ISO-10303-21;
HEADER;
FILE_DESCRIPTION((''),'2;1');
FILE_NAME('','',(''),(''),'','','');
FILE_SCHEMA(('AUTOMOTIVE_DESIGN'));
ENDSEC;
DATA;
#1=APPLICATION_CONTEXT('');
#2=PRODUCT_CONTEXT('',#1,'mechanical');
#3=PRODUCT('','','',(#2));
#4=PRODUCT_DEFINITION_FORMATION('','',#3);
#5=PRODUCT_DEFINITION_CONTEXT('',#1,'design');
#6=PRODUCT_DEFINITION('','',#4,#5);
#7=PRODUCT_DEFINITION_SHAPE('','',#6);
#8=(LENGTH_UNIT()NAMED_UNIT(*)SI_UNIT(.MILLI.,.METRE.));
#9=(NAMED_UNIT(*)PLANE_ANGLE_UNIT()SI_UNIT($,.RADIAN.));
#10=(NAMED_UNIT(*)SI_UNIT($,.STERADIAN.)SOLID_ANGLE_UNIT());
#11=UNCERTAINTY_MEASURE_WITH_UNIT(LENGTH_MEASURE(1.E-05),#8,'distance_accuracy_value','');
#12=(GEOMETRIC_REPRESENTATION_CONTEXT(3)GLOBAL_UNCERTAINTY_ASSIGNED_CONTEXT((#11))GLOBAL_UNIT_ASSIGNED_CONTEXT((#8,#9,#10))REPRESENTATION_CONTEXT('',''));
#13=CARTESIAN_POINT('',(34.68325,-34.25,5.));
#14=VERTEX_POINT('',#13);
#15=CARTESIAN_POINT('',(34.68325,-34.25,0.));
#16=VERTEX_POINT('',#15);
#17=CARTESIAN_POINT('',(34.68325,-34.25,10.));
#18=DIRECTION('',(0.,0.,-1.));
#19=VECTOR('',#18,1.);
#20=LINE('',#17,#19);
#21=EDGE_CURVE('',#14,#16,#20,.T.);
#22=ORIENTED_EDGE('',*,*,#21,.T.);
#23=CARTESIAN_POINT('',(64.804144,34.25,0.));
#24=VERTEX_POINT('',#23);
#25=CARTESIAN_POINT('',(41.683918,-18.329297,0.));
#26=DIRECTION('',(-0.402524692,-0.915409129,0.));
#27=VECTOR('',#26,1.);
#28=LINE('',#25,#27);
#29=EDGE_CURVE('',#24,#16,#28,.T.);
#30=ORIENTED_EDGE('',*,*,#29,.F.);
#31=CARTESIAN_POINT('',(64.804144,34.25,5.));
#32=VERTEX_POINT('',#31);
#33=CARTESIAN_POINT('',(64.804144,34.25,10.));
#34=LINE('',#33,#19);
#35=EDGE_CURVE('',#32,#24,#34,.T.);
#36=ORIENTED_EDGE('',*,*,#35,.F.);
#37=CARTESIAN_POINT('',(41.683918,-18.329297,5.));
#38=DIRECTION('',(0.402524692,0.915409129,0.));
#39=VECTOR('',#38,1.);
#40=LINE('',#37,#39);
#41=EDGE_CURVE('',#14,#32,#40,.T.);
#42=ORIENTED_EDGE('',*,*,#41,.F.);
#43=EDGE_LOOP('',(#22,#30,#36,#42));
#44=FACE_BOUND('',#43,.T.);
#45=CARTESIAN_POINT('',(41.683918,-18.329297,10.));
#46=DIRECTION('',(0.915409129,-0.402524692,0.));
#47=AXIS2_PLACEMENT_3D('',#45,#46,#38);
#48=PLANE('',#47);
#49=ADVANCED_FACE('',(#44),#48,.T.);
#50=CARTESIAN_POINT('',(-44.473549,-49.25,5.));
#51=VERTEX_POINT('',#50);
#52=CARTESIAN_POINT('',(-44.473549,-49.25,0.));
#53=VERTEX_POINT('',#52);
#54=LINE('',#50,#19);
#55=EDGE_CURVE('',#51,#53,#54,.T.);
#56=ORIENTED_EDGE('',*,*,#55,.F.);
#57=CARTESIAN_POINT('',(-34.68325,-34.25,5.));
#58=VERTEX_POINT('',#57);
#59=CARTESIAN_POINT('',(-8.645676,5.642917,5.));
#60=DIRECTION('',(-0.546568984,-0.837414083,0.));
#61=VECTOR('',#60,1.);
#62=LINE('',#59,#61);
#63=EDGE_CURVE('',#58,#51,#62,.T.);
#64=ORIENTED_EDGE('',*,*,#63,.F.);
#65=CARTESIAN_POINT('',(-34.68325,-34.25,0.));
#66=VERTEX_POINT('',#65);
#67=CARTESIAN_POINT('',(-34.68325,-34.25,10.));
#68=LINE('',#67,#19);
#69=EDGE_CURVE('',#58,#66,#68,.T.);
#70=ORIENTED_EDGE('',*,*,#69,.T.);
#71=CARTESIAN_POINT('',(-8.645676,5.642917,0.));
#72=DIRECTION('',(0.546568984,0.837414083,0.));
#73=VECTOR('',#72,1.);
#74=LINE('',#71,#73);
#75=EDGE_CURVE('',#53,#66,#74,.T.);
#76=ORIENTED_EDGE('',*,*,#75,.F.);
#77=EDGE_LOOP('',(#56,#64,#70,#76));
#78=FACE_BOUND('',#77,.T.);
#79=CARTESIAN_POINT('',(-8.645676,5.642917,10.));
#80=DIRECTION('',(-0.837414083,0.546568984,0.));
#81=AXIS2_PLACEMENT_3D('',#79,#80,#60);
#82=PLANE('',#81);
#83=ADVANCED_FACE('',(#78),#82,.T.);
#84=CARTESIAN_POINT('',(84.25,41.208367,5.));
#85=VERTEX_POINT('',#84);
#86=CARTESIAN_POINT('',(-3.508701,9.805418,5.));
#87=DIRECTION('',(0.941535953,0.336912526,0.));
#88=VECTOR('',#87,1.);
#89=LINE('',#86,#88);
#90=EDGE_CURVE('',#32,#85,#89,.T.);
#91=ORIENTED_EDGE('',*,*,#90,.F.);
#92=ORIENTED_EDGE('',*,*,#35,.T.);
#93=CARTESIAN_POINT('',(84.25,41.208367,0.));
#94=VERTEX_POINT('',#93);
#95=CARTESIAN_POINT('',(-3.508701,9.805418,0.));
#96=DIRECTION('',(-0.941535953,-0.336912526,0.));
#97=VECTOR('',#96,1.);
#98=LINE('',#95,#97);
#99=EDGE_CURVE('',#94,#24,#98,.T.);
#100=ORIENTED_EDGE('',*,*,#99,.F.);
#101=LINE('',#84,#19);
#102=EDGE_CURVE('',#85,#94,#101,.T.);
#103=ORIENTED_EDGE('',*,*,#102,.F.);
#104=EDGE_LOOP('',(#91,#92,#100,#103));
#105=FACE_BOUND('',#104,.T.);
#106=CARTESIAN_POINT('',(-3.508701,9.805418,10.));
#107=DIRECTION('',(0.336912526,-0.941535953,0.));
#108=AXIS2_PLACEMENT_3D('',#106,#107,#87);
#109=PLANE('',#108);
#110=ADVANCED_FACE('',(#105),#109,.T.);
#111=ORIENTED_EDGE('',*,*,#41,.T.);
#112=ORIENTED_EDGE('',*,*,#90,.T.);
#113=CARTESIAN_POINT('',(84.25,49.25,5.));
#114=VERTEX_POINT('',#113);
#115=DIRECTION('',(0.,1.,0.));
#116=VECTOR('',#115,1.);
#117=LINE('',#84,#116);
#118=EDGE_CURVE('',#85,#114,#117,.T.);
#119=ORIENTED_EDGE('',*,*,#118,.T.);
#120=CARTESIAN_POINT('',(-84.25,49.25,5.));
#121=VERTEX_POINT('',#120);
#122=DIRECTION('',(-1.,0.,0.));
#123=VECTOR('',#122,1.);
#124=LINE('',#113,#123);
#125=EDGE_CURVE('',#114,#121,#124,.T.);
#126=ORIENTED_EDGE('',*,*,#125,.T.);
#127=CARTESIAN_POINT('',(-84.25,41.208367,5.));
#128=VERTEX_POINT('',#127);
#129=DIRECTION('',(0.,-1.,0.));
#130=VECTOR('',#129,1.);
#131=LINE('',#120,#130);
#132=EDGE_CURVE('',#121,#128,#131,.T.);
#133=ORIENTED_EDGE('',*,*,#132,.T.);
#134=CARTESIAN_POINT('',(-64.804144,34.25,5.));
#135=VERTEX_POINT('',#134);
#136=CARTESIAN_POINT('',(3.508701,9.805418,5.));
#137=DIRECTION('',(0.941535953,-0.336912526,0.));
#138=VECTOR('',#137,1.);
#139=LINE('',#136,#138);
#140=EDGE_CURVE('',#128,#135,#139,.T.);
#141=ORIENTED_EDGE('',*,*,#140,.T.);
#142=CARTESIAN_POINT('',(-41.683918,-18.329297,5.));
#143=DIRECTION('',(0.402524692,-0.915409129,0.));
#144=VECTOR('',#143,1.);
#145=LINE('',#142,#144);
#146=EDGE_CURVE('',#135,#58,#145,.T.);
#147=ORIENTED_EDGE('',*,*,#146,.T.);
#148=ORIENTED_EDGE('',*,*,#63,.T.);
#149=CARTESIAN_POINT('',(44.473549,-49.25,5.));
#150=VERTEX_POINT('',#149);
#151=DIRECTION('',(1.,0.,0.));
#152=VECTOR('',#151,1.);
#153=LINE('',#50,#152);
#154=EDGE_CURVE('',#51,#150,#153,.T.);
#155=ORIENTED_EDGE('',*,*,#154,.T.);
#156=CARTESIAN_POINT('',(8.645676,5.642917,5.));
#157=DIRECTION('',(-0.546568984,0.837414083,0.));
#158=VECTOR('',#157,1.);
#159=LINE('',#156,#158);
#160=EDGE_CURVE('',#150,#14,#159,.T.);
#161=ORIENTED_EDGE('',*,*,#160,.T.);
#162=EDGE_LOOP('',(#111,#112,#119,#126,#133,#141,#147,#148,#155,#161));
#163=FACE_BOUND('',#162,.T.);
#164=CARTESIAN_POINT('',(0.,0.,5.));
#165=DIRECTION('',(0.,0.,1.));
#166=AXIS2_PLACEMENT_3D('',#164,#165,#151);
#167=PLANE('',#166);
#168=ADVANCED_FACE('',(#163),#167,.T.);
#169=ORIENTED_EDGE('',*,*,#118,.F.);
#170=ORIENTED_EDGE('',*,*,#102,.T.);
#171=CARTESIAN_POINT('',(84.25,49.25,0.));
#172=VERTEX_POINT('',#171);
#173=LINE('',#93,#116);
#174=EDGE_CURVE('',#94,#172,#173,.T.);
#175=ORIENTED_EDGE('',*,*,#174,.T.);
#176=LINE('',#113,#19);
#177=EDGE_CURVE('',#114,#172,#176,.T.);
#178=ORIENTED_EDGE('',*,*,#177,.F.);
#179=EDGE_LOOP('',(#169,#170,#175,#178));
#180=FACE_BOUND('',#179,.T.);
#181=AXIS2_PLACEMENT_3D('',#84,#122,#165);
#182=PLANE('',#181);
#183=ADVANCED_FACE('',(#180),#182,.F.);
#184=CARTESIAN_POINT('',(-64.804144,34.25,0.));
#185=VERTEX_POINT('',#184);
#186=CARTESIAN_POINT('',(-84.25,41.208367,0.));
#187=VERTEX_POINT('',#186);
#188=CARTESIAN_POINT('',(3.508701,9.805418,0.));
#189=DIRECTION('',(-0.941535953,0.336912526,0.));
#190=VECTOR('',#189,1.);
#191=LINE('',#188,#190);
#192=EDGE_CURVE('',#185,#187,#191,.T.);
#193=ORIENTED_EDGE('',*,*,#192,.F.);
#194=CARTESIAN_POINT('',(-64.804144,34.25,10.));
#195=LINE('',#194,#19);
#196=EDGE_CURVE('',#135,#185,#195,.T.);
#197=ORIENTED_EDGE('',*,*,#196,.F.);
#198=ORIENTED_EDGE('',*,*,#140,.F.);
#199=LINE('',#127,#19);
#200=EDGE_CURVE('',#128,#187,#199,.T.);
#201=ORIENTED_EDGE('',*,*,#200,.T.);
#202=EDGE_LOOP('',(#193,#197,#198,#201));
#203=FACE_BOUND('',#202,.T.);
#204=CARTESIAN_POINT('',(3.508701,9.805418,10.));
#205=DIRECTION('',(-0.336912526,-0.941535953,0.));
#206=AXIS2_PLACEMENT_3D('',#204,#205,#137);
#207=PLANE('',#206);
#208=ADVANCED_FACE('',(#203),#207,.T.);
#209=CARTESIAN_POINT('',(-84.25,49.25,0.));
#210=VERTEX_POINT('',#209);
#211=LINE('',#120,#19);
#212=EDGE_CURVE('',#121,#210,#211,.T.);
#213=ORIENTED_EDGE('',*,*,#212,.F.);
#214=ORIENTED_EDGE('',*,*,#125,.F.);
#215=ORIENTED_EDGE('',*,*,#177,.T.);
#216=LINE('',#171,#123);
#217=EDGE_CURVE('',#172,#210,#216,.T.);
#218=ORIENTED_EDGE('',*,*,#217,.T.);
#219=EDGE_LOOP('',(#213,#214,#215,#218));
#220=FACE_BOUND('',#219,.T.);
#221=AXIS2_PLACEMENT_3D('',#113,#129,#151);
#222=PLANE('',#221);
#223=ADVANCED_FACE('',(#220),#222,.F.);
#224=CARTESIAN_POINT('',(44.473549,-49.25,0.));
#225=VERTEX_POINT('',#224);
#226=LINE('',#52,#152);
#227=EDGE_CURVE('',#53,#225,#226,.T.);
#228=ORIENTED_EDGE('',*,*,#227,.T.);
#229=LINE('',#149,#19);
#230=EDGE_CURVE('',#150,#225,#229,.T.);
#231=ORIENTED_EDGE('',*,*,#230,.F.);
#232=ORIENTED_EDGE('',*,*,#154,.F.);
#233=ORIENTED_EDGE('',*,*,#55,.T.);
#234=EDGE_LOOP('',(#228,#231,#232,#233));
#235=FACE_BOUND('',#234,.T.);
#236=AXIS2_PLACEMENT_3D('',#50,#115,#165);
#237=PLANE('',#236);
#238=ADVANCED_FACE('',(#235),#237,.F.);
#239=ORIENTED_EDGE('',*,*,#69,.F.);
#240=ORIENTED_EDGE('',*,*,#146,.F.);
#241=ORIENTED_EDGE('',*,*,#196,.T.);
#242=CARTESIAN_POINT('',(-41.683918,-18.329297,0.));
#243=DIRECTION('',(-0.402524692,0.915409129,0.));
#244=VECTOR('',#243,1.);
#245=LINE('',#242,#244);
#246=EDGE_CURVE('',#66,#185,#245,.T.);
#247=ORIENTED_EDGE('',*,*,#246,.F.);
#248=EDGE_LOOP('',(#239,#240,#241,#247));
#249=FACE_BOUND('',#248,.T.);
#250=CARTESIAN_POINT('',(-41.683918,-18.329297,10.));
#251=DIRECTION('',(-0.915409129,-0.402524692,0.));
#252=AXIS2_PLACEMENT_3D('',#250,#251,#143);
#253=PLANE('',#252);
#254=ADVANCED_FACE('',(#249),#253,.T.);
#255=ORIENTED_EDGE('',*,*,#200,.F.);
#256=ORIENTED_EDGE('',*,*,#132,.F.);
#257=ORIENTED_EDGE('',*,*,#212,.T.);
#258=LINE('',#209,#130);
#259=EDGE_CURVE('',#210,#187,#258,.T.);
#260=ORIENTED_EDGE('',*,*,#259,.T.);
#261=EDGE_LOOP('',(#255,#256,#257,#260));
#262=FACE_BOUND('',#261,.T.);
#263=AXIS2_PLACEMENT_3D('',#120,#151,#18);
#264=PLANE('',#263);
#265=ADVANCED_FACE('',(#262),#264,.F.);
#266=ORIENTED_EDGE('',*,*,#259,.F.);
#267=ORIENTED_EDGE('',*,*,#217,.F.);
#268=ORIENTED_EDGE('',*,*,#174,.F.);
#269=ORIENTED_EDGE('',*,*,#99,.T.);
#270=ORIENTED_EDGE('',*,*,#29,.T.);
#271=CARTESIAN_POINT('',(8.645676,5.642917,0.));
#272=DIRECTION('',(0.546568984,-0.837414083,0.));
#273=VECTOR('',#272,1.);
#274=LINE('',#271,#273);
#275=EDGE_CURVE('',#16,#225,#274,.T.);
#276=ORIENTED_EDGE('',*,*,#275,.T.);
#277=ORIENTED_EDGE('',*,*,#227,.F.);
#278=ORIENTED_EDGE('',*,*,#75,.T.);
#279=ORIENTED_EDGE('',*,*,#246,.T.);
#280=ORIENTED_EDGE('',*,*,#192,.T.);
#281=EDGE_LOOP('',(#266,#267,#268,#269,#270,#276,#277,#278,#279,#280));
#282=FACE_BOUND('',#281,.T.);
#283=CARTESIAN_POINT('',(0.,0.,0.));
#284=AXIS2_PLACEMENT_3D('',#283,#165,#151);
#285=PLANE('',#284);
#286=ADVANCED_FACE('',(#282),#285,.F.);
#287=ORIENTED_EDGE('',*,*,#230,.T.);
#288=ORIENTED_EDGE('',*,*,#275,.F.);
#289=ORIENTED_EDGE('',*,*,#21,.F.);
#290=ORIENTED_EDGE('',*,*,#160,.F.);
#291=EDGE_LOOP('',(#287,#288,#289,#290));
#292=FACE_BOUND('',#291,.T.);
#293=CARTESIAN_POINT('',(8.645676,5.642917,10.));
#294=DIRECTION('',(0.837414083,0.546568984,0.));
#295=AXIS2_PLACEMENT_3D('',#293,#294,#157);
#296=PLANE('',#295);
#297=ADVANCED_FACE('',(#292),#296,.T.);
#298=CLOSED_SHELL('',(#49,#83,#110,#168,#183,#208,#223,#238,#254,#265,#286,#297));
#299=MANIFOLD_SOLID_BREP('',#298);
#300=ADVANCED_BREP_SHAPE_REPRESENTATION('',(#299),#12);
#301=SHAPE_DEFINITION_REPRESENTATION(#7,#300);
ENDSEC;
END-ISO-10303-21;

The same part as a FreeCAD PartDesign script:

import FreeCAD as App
import Part
import Sketcher

V = App.Vector

doc = App.newDocument("Part")
body = doc.addObject("PartDesign::Body", "Body")

sketch1 = body.newObject("Sketcher::SketchObject", "Sketch")
sketch1.AttachmentSupport = (doc.getObject("XY_Plane"), [""])
sketch1.MapMode = "FlatFace"
sketch1.addGeometry([
    Part.LineSegment(V(-84, 41, 0), V(-44, -49, 0)),
    Part.LineSegment(V(-44, -49, 0), V(44, -49, 0)),
    Part.LineSegment(V(44, -49, 0), V(84, 41, 0)),
    Part.LineSegment(V(84, 41, 0), V(84, 49, 0)),
    Part.LineSegment(V(84, 49, 0), V(-84, 49, 0)),
    Part.LineSegment(V(-84, 49, 0), V(-84, 41, 0)),
], False)
sketch1.addConstraint([
    Sketcher.Constraint("Coincident", 0, 2, 1, 1),
    Sketcher.Constraint("Coincident", 1, 2, 2, 1),
    Sketcher.Constraint("Coincident", 2, 2, 3, 1),
    Sketcher.Constraint("Coincident", 3, 2, 4, 1),
    Sketcher.Constraint("Coincident", 4, 2, 5, 1),
    Sketcher.Constraint("Coincident", 5, 2, 0, 1),
    Sketcher.Constraint("Horizontal", 1),
    Sketcher.Constraint("Vertical", 3),
    Sketcher.Constraint("Horizontal", 4),
    Sketcher.Constraint("Vertical", 5),
    Sketcher.Constraint("Symmetric", 2, 2, 5, 2, -2),
    Sketcher.Constraint("Equal", 0, 2),
    Sketcher.Constraint("DistanceX", 4, 2, 4, 1, 168.5),
    Sketcher.Constraint("DistanceY", 1, 2, 3, 2, 98.5),
    Sketcher.Constraint("DistanceY", 0, 2, -1, 1, 49.25),
    Sketcher.Constraint("DistanceX", 1, 1, 1, 2, 88.947098),
    Sketcher.Constraint("Distance", 0, 98.817418),
])
pad1 = body.newObject("PartDesign::Pad", "Pad")
pad1.Profile = sketch1
pad1.Length = 5

sketch2 = body.newObject("Sketcher::SketchObject", "Sketch001")
sketch2.AttachmentSupport = (doc.getObject("XY_Plane"), [""])
sketch2.MapMode = "FlatFace"
sketch2.addGeometry([
    Part.LineSegment(V(-35, -34, 0), V(-44, -49, 0)),
    Part.LineSegment(V(-44, -49, 0), V(-84, 41, 0)),
    Part.LineSegment(V(-84, 41, 0), V(-65, 34, 0)),
    Part.LineSegment(V(-65, 34, 0), V(-35, -34, 0)),
    Part.LineSegment(V(35, -34, 0), V(65, 34, 0)),
    Part.LineSegment(V(65, 34, 0), V(84, 41, 0)),
    Part.LineSegment(V(84, 41, 0), V(44, -49, 0)),
    Part.LineSegment(V(44, -49, 0), V(35, -34, 0)),
], False)
sketch2.addConstraint([
    Sketcher.Constraint("Coincident", 0, 2, 1, 1),
    Sketcher.Constraint("Coincident", 1, 2, 2, 1),
    Sketcher.Constraint("Coincident", 2, 2, 3, 1),
    Sketcher.Constraint("Coincident", 3, 2, 0, 1),
    Sketcher.Constraint("Coincident", 4, 2, 5, 1),
    Sketcher.Constraint("Coincident", 5, 2, 6, 1),
    Sketcher.Constraint("Coincident", 6, 2, 7, 1),
    Sketcher.Constraint("Coincident", 7, 2, 4, 1),
    Sketcher.Constraint("Symmetric", 2, 2, 4, 2, -2),
    Sketcher.Constraint("Symmetric", 1, 2, 5, 2, -2),
    Sketcher.Constraint("Symmetric", 0, 2, 6, 2, -2),
    Sketcher.Constraint("Symmetric", 3, 2, 7, 2, -2),
    Sketcher.Constraint("Parallel", 1, 3),
    Sketcher.Constraint("DistanceY", 0, 2, 3, 2, 15.0),
    Sketcher.Constraint("DistanceY", 0, 2, 2, 2, 83.5),
    Sketcher.Constraint("DistanceX", 1, 2, 5, 2, 168.5),
    Sketcher.Constraint("DistanceY", 0, 2, -1, 1, 49.25),
    Sketcher.Constraint("DistanceX", 0, 2, 3, 2, 9.7903),
    Sketcher.Constraint("DistanceX", 3, 2, 6, 2, 79.156799),
    Sketcher.Constraint("Distance", 1, 98.817418),
])
pocket1 = body.newObject("PartDesign::Pocket", "Pocket")
pocket1.Profile = sketch2
pocket1.Length = 10
pocket1.Reversed = True

doc.recompute()
